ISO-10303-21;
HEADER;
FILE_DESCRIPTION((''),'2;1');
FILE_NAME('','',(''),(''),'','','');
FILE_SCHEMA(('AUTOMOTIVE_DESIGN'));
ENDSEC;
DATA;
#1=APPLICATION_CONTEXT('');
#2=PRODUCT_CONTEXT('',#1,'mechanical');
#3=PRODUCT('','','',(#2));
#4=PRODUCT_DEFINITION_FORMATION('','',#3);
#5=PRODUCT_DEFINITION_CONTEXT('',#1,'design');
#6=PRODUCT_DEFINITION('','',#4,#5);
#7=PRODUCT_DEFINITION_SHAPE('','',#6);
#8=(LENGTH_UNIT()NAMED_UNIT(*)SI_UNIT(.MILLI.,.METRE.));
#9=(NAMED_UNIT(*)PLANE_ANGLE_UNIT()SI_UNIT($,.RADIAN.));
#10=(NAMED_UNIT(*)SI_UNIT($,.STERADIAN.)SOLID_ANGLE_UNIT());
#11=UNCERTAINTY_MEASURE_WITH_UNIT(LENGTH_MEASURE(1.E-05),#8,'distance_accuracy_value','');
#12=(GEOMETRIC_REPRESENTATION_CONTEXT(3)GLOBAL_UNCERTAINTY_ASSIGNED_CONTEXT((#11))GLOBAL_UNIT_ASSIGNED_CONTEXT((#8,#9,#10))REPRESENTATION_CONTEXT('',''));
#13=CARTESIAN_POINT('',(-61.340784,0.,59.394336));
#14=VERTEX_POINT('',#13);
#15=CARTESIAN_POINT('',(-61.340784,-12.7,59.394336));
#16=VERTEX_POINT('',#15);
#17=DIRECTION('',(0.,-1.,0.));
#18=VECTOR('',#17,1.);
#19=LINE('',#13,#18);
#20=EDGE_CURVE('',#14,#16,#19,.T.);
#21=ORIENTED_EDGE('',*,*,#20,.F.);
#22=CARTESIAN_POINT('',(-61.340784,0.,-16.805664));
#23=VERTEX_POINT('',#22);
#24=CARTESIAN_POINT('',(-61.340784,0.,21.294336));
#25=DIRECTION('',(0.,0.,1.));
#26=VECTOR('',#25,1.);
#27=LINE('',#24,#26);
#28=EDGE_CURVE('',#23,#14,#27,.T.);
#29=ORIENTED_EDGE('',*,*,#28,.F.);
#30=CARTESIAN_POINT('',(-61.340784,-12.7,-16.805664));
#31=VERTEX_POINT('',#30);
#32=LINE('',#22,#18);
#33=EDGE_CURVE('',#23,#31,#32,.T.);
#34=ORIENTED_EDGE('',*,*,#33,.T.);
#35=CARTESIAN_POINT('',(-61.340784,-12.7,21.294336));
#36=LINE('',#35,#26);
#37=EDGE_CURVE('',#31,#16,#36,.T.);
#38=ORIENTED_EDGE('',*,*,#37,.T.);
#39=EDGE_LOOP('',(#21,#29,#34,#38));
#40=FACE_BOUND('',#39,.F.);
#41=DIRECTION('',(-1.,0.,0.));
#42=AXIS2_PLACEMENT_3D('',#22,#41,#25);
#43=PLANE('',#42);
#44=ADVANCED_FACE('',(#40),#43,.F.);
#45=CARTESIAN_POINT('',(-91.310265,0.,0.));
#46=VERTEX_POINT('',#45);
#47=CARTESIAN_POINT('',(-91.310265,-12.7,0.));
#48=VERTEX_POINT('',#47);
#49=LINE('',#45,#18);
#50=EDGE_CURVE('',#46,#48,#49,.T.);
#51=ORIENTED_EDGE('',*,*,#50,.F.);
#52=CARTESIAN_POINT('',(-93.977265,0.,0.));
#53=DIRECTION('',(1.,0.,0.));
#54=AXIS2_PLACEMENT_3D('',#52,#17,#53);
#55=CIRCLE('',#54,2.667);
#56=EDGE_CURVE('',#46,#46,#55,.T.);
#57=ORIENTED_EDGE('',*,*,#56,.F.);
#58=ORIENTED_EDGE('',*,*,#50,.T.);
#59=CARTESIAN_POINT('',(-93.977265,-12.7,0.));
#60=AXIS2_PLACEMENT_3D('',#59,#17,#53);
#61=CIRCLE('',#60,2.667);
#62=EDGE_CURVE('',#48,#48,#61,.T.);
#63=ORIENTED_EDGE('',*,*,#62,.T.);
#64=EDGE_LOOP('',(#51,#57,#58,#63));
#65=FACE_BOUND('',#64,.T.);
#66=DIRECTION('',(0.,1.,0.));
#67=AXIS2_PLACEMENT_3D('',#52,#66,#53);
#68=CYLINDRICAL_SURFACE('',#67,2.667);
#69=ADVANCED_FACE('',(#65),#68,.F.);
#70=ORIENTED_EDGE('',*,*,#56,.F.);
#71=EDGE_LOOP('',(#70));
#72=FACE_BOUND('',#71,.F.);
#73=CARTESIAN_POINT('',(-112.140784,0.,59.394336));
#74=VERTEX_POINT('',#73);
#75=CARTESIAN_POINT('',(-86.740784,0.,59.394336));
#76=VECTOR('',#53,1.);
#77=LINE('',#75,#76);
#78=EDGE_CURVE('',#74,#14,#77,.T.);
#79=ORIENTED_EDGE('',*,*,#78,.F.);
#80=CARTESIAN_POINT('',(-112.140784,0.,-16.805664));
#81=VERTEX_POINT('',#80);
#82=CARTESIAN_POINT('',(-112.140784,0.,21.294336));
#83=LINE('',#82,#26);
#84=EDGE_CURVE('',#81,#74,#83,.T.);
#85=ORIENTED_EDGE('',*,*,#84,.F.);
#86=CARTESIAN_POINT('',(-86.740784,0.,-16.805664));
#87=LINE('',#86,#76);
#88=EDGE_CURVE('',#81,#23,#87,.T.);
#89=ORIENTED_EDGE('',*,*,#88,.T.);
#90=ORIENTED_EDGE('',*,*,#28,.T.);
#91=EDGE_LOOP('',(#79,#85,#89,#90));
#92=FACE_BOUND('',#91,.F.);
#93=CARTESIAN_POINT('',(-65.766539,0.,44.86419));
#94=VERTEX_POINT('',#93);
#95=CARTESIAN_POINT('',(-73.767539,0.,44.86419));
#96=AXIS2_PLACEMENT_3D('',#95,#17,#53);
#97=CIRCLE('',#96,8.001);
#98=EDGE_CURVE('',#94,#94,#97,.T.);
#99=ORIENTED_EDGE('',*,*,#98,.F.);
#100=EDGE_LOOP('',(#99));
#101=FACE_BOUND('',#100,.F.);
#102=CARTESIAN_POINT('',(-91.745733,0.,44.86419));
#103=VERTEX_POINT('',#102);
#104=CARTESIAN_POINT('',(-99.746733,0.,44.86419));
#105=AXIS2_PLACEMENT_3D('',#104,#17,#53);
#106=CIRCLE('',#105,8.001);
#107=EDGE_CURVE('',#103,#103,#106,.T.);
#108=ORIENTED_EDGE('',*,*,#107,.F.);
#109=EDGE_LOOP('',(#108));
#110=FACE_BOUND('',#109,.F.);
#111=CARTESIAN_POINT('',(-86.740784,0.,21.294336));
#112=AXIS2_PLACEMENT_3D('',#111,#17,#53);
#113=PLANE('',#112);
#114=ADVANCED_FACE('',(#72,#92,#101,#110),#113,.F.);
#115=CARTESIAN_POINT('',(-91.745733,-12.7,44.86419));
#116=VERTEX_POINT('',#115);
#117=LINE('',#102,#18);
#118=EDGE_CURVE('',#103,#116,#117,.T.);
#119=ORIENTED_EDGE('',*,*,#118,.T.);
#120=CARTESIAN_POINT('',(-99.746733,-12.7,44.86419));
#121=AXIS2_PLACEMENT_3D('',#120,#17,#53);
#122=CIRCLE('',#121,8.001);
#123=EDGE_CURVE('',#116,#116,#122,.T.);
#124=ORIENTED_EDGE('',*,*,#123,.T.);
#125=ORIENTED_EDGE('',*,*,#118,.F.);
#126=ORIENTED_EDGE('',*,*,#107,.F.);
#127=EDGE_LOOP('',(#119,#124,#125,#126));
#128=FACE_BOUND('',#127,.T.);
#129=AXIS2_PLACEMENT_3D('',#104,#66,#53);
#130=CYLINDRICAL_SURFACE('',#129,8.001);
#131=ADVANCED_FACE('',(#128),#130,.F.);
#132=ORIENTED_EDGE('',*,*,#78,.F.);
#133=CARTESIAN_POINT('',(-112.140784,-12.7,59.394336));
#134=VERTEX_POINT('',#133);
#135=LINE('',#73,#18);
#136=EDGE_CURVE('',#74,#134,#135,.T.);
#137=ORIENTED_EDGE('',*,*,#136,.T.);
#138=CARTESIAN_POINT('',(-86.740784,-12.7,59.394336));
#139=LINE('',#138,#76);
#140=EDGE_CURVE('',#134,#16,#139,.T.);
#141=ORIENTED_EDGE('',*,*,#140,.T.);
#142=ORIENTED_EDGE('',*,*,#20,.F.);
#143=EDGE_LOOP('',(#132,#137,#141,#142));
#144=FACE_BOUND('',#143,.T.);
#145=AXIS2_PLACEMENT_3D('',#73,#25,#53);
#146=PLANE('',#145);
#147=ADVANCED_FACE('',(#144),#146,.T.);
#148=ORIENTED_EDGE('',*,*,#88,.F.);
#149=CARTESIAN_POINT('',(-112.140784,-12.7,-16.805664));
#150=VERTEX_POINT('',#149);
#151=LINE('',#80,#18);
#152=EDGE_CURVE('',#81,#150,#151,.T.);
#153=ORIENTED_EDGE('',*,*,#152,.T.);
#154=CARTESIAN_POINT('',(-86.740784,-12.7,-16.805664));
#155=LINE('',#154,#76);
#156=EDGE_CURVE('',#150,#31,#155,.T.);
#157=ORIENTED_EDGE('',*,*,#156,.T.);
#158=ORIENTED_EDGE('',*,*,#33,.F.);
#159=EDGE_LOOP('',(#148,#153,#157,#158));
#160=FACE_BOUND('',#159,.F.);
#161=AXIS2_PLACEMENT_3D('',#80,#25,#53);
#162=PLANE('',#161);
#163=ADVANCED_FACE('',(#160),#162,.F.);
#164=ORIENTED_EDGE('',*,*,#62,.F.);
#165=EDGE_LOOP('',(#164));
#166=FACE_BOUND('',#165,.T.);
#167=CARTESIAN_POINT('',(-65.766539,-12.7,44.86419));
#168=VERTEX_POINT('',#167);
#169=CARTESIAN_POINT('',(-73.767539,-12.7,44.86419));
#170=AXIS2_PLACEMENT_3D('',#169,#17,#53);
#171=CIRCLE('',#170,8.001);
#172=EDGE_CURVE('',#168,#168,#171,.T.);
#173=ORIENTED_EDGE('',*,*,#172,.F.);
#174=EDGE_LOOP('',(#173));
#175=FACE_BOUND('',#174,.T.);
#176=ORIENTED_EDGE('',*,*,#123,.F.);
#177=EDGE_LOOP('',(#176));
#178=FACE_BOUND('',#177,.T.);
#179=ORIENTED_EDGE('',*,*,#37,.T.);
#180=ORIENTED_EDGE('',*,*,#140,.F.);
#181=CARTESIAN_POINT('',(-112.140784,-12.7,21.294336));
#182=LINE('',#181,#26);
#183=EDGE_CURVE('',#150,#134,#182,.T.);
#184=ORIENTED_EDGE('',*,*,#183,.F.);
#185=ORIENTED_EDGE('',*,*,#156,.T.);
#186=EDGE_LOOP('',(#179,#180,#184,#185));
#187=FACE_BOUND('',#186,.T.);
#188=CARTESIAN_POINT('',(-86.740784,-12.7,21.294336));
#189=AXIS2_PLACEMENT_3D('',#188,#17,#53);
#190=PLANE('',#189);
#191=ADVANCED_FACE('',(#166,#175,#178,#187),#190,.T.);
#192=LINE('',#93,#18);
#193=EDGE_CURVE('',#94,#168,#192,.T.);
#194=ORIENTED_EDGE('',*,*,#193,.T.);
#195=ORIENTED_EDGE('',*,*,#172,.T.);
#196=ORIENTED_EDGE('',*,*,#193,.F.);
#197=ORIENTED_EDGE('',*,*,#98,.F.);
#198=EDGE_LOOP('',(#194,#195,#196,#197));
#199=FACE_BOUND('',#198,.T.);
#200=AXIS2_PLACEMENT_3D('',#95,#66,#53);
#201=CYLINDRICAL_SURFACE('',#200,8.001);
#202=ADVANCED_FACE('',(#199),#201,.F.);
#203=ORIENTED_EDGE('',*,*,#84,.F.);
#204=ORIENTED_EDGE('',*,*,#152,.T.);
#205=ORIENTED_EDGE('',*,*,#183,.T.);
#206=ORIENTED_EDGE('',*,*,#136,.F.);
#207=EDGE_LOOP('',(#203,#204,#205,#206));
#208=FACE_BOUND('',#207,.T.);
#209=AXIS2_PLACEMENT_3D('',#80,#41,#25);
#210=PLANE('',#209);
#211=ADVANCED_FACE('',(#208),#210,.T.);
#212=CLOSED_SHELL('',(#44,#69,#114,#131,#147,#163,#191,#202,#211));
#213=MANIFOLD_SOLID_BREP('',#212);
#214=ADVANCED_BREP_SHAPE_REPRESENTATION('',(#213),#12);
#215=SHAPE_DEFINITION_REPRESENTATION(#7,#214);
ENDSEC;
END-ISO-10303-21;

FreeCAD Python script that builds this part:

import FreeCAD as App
import Part
import Sketcher
Q = App.Units.Quantity

doc = App.newDocument("Part")
body = doc.addObject("PartDesign::Body", "Body")

# Sketch on XZ plane
sketch1 = doc.addObject("Sketcher::SketchObject", "Sketch")
body.addObject(sketch1)
sketch1.AttachmentSupport = (doc.XZ_Plane, [""])
sketch1.MapMode = "FlatFace"
sketch1.addGeometry(Part.LineSegment(App.Vector(-112.140784, 59.394336, 0), App.Vector(-112.140784, -16.805664, 0)), False)
sketch1.addGeometry(Part.LineSegment(App.Vector(-112.140784, -16.805664, 0), App.Vector(-61.340784, -16.805664, 0)), False)
sketch1.addGeometry(Part.LineSegment(App.Vector(-61.340784, -16.805664, 0), App.Vector(-61.340784, 59.394336, 0)), False)
sketch1.addGeometry(Part.LineSegment(App.Vector(-61.340784, 59.394336, 0), App.Vector(-112.140784, 59.394336, 0)), False)
sketch1.addGeometry(Part.Circle(App.Vector(-93.977265, 0, 0), App.Vector(0, 0, 1), 2.667), False)
sketch1.addGeometry(Part.Circle(App.Vector(-99.746733, 44.86419, 0), App.Vector(0, 0, 1), 8.001), False)
sketch1.addGeometry(Part.Circle(App.Vector(-73.767539, 44.86419, 0), App.Vector(0, 0, 1), 8.001), False)
sketch1.addConstraint(Sketcher.Constraint("Coincident", 0, 2, 1, 1))
sketch1.addConstraint(Sketcher.Constraint("Coincident", 1, 2, 2, 1))
sketch1.addConstraint(Sketcher.Constraint("Coincident", 2, 2, 3, 1))
sketch1.addConstraint(Sketcher.Constraint("Coincident", 3, 2, 0, 1))
sketch1.addConstraint(Sketcher.Constraint("Vertical", 0))
sketch1.addConstraint(Sketcher.Constraint("Horizontal", 1))
sketch1.addConstraint(Sketcher.Constraint("Vertical", 2))
sketch1.addConstraint(Sketcher.Constraint("Horizontal", 3))
sketch1.addConstraint(Sketcher.Constraint("Equal", 5, 6))
sketch1.addConstraint(Sketcher.Constraint("PointOnObject", 4, 3, -1))
sketch1.addConstraint(Sketcher.Constraint("Horizontal", 5, 3, 6, 3))
sketch1.addConstraint(Sketcher.Constraint("Diameter", 4, Q("0.21 in")))
sketch1.addConstraint(Sketcher.Constraint("Diameter", 5, Q("0.63 in")))
sketch1.addConstraint(Sketcher.Constraint("DistanceX", 1, 1, 1, 2, Q("2 in")))
sketch1.addConstraint(Sketcher.Constraint("DistanceY", 0, 2, 0, 1, Q("3 in")))
sketch1.addConstraint(Sketcher.Constraint("DistanceY", -1, 1, 5, 3, Q("44.86419 mm")))
sketch1.addConstraint(Sketcher.Constraint("DistanceX", 6, 3, -1, 1, Q("73.767539 mm")))
sketch1.addConstraint(Sketcher.Constraint("DistanceX", 5, 3, 4, 3, Q("5.769468 mm")))
sketch1.addConstraint(Sketcher.Constraint("DistanceX", 0, 2, 4, 3, Q("18.163519 mm")))
sketch1.addConstraint(Sketcher.Constraint("DistanceX", 4, 3, -1, 1, Q("93.977265 mm")))
sketch1.addConstraint(Sketcher.Constraint("DistanceY", 0, 2, -1, 1, Q("16.805664 mm")))
pad1 = doc.addObject("PartDesign::Pad", "Pad")
body.addObject(pad1)
pad1.Profile = sketch1
pad1.Length = Q("0.5 in")

doc.recompute()
